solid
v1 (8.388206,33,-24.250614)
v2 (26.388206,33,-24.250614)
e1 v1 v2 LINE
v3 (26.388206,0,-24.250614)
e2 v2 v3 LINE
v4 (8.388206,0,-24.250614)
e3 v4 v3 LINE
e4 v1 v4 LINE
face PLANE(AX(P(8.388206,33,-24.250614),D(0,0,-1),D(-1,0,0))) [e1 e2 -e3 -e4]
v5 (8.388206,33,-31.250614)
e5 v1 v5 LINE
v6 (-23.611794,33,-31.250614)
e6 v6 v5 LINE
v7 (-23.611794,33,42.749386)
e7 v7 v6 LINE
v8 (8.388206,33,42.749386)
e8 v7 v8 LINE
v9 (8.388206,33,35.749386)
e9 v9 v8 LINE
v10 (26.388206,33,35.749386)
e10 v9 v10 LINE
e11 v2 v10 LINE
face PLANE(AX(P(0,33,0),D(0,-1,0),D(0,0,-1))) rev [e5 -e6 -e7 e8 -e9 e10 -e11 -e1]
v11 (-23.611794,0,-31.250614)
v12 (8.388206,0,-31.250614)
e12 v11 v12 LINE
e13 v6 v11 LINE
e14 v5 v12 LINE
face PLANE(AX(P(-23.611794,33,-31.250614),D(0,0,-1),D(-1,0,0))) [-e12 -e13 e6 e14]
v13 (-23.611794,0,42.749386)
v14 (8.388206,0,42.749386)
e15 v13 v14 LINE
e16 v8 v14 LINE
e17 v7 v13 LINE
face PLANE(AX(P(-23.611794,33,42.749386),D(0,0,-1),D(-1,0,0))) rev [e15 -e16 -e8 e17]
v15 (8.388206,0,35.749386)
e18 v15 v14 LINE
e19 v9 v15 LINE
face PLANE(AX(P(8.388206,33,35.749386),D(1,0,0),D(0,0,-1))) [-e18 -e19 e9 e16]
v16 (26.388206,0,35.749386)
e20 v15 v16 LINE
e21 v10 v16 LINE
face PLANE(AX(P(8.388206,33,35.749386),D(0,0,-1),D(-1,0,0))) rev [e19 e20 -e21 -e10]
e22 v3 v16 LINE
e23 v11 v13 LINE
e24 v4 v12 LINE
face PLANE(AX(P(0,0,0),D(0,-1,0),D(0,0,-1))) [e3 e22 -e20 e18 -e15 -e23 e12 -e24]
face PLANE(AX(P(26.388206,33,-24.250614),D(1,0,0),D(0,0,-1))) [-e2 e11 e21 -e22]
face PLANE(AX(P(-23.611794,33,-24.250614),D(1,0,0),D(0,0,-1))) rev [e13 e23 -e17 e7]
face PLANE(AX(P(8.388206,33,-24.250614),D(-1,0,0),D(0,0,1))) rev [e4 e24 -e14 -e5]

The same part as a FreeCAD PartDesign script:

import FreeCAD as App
import Part
import Sketcher

doc = App.newDocument("Part")
body = doc.addObject("PartDesign::Body", "Body")

# Sketch on XZ plane
sketch1 = body.newObject("Sketcher::SketchObject", "Sketch")
sketch1.AttachmentSupport = (doc.getObject("XZ_Plane"), [""])
sketch1.MapMode = "FlatFace"
sketch1.addGeometry([
    Part.LineSegment(App.Vector(26, -24, 0), App.Vector(8, -24, 0)),  # 0
    Part.LineSegment(App.Vector(8, -24, 0), App.Vector(8, -31, 0)),  # 1
    Part.LineSegment(App.Vector(8, -31, 0), App.Vector(-24, -31, 0)),  # 2
    Part.LineSegment(App.Vector(-24, -31, 0), App.Vector(-24, 43, 0)),  # 3
    Part.LineSegment(App.Vector(-24, 43, 0), App.Vector(8, 43, 0)),  # 4
    Part.LineSegment(App.Vector(8, 43, 0), App.Vector(8, 36, 0)),  # 5
    Part.LineSegment(App.Vector(8, 36, 0), App.Vector(26, 36, 0)),  # 6
    Part.LineSegment(App.Vector(26, 36, 0), App.Vector(26, -24, 0)),  # 7
], False)
sketch1.addConstraint([
    Sketcher.Constraint("Coincident", 0, 2, 1, 1),
    Sketcher.Constraint("Coincident", 1, 2, 2, 1),
    Sketcher.Constraint("Coincident", 2, 2, 3, 1),
    Sketcher.Constraint("Coincident", 3, 2, 4, 1),
    Sketcher.Constraint("Coincident", 4, 2, 5, 1),
    Sketcher.Constraint("Coincident", 5, 2, 6, 1),
    Sketcher.Constraint("Coincident", 6, 2, 7, 1),
    Sketcher.Constraint("Coincident", 7, 2, 0, 1),
    Sketcher.Constraint("Horizontal", 0),
    Sketcher.Constraint("Vertical", 1),
    Sketcher.Constraint("Horizontal", 2),
    Sketcher.Constraint("Vertical", 3),
    Sketcher.Constraint("Horizontal", 4),
    Sketcher.Constraint("Vertical", 5),
    Sketcher.Constraint("Horizontal", 6),
    Sketcher.Constraint("Vertical", 7),
    Sketcher.Constraint("Vertical", 1, 2, 4, 2),
    Sketcher.Constraint("Equal", 1, 5),
    Sketcher.Constraint("DistanceX", 0, 2, 0, 1, 18.0),
    Sketcher.Constraint("DistanceX", 2, 2, 2, 1, 32.0),
    Sketcher.Constraint("DistanceY", 1, 2, 1, 1, 7.0),
    Sketcher.Constraint("DistanceY", 3, 1, 3, 2, 74.0),
    Sketcher.Constraint("DistanceX", -1, 1, 0, 2, 8.388206),
    Sketcher.Constraint("DistanceY", 0, 2, -1, 1, 24.250614),
])
pad1 = body.newObject("PartDesign::Pad", "Pad")
pad1.Profile = sketch1
pad1.Length = 33
pad1.Reversed = True

doc.recompute()
